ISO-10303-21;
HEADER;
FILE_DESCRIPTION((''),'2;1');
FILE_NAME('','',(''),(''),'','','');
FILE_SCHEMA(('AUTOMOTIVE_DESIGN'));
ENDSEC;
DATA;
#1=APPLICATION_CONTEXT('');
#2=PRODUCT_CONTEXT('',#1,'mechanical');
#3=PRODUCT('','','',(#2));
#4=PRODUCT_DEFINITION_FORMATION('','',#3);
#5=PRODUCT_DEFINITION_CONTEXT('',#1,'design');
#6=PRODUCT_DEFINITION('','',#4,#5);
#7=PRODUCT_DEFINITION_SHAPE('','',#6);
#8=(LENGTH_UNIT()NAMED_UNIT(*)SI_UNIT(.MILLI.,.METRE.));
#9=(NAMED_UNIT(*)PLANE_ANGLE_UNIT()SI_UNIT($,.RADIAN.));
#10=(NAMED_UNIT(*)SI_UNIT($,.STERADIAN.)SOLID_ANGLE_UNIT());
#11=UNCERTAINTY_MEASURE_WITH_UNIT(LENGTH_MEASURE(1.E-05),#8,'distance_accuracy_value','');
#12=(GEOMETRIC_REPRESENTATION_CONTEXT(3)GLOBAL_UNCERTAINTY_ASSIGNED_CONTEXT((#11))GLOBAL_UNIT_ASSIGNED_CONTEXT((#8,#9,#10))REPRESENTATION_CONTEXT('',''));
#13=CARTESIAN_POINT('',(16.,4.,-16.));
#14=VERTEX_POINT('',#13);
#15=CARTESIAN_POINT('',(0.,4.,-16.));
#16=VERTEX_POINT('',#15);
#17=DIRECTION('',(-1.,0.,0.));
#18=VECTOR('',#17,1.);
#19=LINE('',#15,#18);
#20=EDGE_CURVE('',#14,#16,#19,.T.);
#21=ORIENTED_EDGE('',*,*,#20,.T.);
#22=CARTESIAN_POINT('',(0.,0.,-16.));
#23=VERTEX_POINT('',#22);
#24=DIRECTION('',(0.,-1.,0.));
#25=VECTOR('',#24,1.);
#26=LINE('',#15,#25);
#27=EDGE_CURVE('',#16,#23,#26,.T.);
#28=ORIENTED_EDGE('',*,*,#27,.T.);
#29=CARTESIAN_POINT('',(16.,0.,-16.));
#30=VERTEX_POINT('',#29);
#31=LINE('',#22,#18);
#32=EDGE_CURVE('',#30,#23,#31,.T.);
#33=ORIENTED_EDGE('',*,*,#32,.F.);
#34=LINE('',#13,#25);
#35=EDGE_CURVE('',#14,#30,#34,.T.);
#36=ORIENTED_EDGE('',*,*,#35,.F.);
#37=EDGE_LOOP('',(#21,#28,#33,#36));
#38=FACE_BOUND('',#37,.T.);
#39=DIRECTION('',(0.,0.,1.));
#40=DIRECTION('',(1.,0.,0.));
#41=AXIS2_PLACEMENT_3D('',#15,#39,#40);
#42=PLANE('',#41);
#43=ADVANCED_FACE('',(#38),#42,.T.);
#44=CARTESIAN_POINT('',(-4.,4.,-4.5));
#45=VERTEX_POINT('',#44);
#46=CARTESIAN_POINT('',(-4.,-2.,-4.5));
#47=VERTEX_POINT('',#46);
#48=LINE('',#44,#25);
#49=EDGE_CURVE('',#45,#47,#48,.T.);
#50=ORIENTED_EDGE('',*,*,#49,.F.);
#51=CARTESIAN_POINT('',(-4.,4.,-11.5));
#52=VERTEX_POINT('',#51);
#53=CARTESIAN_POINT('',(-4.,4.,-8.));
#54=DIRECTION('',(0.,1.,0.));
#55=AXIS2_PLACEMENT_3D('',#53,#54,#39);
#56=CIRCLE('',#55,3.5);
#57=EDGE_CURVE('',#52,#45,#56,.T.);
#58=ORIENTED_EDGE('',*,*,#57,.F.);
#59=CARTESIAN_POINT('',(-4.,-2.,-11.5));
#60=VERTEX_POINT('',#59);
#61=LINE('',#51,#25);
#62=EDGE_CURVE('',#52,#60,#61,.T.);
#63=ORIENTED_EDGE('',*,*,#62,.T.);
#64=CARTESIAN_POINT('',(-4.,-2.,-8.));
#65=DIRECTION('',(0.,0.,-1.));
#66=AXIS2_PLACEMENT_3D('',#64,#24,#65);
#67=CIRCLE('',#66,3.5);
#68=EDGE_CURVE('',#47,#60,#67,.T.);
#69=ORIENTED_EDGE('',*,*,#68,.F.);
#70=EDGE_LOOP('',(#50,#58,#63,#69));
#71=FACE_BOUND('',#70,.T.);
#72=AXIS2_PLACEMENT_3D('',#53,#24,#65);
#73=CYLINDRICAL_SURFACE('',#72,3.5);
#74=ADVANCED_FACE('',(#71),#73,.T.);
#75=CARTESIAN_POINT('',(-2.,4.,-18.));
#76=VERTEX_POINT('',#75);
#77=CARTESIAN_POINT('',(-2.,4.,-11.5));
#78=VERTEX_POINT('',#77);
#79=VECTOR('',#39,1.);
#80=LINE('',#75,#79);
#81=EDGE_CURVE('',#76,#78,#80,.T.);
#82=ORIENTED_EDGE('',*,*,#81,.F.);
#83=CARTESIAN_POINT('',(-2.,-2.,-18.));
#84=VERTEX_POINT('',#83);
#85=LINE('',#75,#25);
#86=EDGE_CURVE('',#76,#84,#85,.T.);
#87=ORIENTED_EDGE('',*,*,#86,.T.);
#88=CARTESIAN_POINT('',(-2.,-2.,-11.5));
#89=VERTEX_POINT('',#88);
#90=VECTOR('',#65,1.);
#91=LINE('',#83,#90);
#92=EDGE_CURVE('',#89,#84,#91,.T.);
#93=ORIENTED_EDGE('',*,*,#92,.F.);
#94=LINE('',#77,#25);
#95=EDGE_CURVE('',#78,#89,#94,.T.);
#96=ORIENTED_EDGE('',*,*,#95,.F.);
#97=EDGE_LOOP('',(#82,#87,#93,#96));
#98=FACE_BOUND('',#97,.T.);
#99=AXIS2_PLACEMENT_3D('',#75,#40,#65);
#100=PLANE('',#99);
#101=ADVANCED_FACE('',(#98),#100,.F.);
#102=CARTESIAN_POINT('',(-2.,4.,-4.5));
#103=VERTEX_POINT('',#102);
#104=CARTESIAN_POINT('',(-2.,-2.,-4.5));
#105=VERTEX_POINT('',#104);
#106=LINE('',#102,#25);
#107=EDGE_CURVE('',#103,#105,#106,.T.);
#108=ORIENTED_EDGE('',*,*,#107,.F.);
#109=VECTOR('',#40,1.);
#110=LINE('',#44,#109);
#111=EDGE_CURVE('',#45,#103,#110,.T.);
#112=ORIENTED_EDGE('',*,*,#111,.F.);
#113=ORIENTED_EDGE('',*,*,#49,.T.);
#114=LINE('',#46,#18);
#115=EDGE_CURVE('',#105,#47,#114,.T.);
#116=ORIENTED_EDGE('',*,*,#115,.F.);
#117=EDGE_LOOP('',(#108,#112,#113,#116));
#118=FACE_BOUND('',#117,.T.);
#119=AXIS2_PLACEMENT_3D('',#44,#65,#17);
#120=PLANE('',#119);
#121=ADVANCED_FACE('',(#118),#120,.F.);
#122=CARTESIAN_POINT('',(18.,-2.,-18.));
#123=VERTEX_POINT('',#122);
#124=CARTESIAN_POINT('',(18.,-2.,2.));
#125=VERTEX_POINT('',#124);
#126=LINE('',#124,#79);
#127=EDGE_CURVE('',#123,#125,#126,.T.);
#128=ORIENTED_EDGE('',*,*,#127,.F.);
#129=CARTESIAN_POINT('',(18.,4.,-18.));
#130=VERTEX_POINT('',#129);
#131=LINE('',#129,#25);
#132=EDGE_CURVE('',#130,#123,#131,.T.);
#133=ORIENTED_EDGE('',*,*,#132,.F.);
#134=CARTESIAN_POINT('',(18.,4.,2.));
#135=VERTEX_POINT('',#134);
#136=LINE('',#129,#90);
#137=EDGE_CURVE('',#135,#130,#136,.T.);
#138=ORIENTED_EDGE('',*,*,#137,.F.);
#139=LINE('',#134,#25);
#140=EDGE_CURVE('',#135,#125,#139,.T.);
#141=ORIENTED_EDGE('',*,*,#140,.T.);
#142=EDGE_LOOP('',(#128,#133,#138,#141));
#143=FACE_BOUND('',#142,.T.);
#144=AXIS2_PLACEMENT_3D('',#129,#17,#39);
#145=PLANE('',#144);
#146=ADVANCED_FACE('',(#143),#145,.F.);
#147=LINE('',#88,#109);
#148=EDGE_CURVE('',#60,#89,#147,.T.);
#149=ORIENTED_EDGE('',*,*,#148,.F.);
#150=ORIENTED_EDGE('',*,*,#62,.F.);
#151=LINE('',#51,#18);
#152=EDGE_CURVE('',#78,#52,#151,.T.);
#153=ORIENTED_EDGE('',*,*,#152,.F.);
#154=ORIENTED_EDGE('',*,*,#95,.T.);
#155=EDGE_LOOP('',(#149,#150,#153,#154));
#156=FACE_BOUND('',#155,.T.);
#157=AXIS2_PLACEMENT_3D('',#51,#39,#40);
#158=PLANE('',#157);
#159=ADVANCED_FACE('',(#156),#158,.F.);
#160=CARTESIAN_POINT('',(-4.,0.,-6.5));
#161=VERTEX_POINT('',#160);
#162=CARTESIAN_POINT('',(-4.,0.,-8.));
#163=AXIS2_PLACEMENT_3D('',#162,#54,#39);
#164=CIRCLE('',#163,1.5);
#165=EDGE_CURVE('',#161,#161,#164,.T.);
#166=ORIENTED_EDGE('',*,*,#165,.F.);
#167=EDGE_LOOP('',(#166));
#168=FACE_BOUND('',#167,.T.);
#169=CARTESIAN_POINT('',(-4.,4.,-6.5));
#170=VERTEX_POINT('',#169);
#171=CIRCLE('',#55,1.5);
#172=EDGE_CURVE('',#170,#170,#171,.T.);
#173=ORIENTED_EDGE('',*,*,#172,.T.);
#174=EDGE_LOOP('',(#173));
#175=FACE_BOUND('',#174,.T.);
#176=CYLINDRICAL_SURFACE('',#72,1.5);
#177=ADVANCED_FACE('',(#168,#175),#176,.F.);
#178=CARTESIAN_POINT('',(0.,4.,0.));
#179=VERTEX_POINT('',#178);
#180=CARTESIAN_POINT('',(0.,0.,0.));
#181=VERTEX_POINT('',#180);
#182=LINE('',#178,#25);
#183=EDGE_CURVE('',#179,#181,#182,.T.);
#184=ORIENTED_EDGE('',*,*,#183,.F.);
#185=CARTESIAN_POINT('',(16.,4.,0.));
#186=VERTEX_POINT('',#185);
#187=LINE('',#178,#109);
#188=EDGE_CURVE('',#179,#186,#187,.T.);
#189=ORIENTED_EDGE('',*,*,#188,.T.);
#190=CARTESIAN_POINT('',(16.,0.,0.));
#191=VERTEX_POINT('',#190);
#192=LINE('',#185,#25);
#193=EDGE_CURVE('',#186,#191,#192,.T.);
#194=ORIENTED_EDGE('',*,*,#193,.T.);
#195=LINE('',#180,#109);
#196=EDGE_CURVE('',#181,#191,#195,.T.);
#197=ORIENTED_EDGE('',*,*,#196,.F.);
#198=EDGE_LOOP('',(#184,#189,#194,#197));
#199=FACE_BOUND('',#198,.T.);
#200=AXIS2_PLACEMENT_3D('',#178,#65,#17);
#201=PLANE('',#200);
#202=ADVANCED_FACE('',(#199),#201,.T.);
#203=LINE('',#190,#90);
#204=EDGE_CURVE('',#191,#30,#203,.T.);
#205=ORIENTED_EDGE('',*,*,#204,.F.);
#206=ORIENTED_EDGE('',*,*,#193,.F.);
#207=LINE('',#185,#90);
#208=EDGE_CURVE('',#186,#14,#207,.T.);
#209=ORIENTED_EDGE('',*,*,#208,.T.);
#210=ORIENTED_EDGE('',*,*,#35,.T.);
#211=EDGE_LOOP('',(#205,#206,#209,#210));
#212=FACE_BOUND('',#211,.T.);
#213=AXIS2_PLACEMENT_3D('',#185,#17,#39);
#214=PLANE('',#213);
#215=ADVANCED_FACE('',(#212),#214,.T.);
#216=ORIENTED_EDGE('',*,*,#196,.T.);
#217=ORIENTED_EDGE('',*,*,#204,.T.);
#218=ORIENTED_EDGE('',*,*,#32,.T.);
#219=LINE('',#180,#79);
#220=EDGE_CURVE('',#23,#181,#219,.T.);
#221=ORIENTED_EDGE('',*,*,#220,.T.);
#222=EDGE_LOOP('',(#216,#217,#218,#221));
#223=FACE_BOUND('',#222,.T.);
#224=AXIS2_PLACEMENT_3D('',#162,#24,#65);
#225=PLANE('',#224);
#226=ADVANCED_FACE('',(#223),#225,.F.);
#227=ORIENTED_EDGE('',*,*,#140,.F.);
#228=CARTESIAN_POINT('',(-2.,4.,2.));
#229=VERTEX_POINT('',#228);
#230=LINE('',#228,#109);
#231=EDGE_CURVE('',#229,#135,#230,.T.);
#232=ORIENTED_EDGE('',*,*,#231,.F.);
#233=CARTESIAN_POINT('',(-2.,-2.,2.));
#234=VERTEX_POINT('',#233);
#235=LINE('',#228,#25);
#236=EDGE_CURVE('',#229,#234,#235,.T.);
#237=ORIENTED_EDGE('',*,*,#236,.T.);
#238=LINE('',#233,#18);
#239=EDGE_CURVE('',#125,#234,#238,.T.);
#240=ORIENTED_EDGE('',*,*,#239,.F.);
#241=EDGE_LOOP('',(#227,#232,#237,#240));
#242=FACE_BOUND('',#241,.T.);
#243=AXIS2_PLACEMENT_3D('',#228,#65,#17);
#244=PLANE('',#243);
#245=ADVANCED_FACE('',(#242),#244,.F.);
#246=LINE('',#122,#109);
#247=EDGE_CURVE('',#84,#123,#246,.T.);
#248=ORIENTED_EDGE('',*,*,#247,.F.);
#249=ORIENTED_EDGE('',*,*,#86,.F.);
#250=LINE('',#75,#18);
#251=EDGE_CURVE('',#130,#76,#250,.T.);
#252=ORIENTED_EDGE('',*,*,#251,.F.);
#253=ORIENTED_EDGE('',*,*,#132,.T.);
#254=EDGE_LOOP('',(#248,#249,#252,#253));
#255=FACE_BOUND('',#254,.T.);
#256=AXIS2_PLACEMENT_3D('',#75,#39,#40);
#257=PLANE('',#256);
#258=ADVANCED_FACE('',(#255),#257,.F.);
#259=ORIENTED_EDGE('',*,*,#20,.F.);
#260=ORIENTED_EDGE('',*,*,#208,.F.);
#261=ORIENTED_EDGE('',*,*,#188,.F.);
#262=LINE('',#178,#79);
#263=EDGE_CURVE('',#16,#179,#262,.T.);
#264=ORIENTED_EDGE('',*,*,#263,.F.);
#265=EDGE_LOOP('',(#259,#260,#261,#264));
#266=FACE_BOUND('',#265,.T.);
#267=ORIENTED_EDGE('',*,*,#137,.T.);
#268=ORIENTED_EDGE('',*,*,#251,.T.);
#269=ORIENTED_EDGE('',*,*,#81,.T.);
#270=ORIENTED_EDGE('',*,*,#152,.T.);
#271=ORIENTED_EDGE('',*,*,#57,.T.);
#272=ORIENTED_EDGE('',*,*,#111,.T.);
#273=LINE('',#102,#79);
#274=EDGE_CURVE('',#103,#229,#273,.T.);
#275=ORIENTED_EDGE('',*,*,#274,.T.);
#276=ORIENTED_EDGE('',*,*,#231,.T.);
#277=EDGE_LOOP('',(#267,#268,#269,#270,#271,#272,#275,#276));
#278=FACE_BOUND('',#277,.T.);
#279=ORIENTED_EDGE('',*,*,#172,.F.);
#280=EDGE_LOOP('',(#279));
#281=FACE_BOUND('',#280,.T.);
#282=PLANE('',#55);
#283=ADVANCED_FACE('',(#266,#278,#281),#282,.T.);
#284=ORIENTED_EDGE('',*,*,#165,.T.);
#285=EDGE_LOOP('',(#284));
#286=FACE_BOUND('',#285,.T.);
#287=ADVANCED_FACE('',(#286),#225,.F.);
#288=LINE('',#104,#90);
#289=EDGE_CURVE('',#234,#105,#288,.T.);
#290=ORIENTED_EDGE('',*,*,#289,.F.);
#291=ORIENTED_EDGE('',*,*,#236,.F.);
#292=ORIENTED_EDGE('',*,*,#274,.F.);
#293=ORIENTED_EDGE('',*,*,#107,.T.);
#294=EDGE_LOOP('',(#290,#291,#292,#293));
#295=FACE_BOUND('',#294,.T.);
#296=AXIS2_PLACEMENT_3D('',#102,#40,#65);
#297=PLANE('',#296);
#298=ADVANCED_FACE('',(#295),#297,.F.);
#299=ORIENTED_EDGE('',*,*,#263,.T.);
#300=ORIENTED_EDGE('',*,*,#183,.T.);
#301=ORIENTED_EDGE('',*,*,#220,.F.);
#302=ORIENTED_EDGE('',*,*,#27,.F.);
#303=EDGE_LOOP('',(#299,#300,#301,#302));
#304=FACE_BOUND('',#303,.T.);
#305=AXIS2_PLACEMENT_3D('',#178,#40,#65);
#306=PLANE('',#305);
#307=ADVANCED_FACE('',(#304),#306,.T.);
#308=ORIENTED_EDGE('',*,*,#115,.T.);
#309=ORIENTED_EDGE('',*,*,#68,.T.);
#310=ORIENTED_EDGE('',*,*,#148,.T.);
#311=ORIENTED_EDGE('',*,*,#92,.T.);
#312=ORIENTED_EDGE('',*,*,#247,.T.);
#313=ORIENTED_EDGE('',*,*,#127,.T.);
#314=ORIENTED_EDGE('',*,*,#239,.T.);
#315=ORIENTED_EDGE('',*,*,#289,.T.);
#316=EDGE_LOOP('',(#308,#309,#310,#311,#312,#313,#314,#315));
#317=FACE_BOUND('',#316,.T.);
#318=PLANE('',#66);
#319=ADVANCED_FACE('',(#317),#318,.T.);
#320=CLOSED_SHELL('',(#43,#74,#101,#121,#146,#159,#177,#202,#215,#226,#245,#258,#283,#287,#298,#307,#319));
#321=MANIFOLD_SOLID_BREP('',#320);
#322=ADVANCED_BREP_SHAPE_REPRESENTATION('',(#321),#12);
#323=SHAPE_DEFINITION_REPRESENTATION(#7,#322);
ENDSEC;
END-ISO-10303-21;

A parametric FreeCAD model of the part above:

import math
import FreeCAD as App
import Part
import Sketcher

V = App.Vector


def add_polygon(sketch, points):
    """Adds a closed chain of lines whose ends are joined by coincident constraints."""
    first, n = sketch.GeometryCount, len(points)
    for a, b in zip(points, points[1:] + points[:1]):
        sketch.addGeometry(Part.LineSegment(App.Vector(*a, 0), App.Vector(*b, 0)), False)
    for i in range(n):
        sketch.addConstraint(Sketcher.Constraint("Coincident", first + i, 2, first + (i + 1) % n, 1))

doc = App.newDocument("Part")
body = doc.addObject("PartDesign::Body", "Body")

sketch1 = body.newObject("Sketcher::SketchObject", "Sketch")
sketch1.AttachmentSupport = (doc.getObject("XZ_Plane"), [""])
sketch1.MapMode = "FlatFace"
sketch1.addGeometry(Part.LineSegment(V(18, -18, 0), V(-2, -18, 0)), False)
sketch1.addGeometry(Part.LineSegment(V(-2, -18, 0), V(-2, -11.5, 0)), False)
sketch1.addGeometry(Part.LineSegment(V(-2, -11.5, 0), V(-4, -11.5, 0)), False)
sketch1.addGeometry(Part.ArcOfCircle(Part.Circle(V(-4, -8, 0), V(0, 0, 1), 3.5), math.radians(90), math.radians(270)), False)
sketch1.addGeometry(Part.LineSegment(V(-4, -4.5, 0), V(-2, -4.5, 0)), False)
sketch1.addGeometry(Part.LineSegment(V(-2, -4.5, 0), V(-2, 2, 0)), False)
sketch1.addGeometry(Part.LineSegment(V(-2, 2, 0), V(18, 2, 0)), False)
sketch1.addGeometry(Part.LineSegment(V(18, 2, 0), V(18, -18, 0)), False)
add_polygon(sketch1, [(0, 0), (0, -16), (16, -16), (16, 0)])
sketch1.addGeometry(Part.Circle(V(-4, -8, 0), V(0, 0, 1), 1.5), False)
sketch1.addConstraint(Sketcher.Constraint("Coincident", 0, 2, 1, 1))
sketch1.addConstraint(Sketcher.Constraint("Coincident", 1, 2, 2, 1))
sketch1.addConstraint(Sketcher.Constraint("Tangent", 2, 2, 3, 2))
sketch1.addConstraint(Sketcher.Constraint("Tangent", 3, 1, 4, 1))
sketch1.addConstraint(Sketcher.Constraint("Coincident", 4, 2, 5, 1))
sketch1.addConstraint(Sketcher.Constraint("Coincident", 5, 2, 6, 1))
sketch1.addConstraint(Sketcher.Constraint("Coincident", 6, 2, 7, 1))
sketch1.addConstraint(Sketcher.Constraint("Coincident", 7, 2, 0, 1))
sketch1.addConstraint(Sketcher.Constraint("Horizontal", 0))
sketch1.addConstraint(Sketcher.Constraint("Vertical", 1))
sketch1.addConstraint(Sketcher.Constraint("Horizontal", 2))
sketch1.addConstraint(Sketcher.Constraint("Horizontal", 4))
sketch1.addConstraint(Sketcher.Constraint("Vertical", 5))
sketch1.addConstraint(Sketcher.Constraint("Horizontal", 6))
sketch1.addConstraint(Sketcher.Constraint("Vertical", 7))
sketch1.addConstraint(Sketcher.Constraint("Vertical", 8))
sketch1.addConstraint(Sketcher.Constraint("Horizontal", 9))
sketch1.addConstraint(Sketcher.Constraint("Vertical", 10))
sketch1.addConstraint(Sketcher.Constraint("Horizontal", 11))
sketch1.addConstraint(Sketcher.Constraint("Coincident", 11, 2, -1, 1))
sketch1.addConstraint(Sketcher.Constraint("Coincident", 12, 3, 3, 3))
sketch1.addConstraint(Sketcher.Constraint("Vertical", 1, 2, 4, 2))
sketch1.addConstraint(Sketcher.Constraint("Equal", 1, 5))
sketch1.addConstraint(Sketcher.Constraint("Equal", 6, 7))
sketch1.addConstraint(Sketcher.Constraint("Equal", 11, 8))
sketch1.addConstraint(Sketcher.Constraint("Diameter", 12, 3.0))
sketch1.addConstraint(Sketcher.Constraint("Radius", 3, 3.5))
sketch1.addConstraint(Sketcher.Constraint("DistanceX", 0, 2, 0, 1, 20.0))
sketch1.addConstraint(Sketcher.Constraint("DistanceX", 2, 2, 2, 1, 2.0))
sketch1.addConstraint(Sketcher.Constraint("DistanceX", 9, 1, 9, 2, 16.0))
sketch1.addConstraint(Sketcher.Constraint("DistanceX", 3, 3, -1, 1, 4.0))
sketch1.addConstraint(Sketcher.Constraint("DistanceY", 3, 3, -1, 1, 8.0))
pad1 = body.newObject("PartDesign::Pad", "Pad")
pad1.Profile = sketch1
pad1.Length = 4
pad1.Reversed = True

sketch2 = body.newObject("Sketcher::SketchObject", "Sketch001")
sketch2.AttachmentSupport = (doc.getObject("XZ_Plane"), [""])
sketch2.MapMode = "FlatFace"
sketch2.AttachmentOffset = App.Placement(V(0, 0, 2), App.Rotation())
sketch2.addGeometry(Part.LineSegment(V(18, -18, 0), V(18, 2, 0)), False)
sketch2.addGeometry(Part.LineSegment(V(18, 2, 0), V(-2, 2, 0)), False)
sketch2.addGeometry(Part.LineSegment(V(-2, 2, 0), V(-2, -4.5, 0)), False)
sketch2.addGeometry(Part.LineSegment(V(-2, -4.5, 0), V(-4, -4.5, 0)), False)
sketch2.addGeometry(Part.ArcOfCircle(Part.Circle(V(-4, -8, 0), V(0, 0, 1), 3.5), math.radians(90), math.radians(270)), False)
sketch2.addGeometry(Part.LineSegment(V(-4, -11.5, 0), V(-2, -11.5, 0)), False)
sketch2.addGeometry(Part.LineSegment(V(-2, -11.5, 0), V(-2, -18, 0)), False)
sketch2.addGeometry(Part.LineSegment(V(-2, -18, 0), V(18, -18, 0)), False)
sketch2.addConstraint(Sketcher.Constraint("Coincident", 0, 2, 1, 1))
sketch2.addConstraint(Sketcher.Constraint("Coincident", 1, 2, 2, 1))
sketch2.addConstraint(Sketcher.Constraint("Coincident", 2, 2, 3, 1))
sketch2.addConstraint(Sketcher.Constraint("Tangent", 3, 2, 4, 1))
sketch2.addConstraint(Sketcher.Constraint("Tangent", 4, 2, 5, 1))
sketch2.addConstraint(Sketcher.Constraint("Coincident", 5, 2, 6, 1))
sketch2.addConstraint(Sketcher.Constraint("Coincident", 6, 2, 7, 1))
sketch2.addConstraint(Sketcher.Constraint("Coincident", 7, 2, 0, 1))
sketch2.addConstraint(Sketcher.Constraint("Vertical", 0))
sketch2.addConstraint(Sketcher.Constraint("Horizontal", 1))
sketch2.addConstraint(Sketcher.Constraint("Vertical", 2))
sketch2.addConstraint(Sketcher.Constraint("Horizontal", 3))
sketch2.addConstraint(Sketcher.Constraint("Horizontal", 5))
sketch2.addConstraint(Sketcher.Constraint("Vertical", 6))
sketch2.addConstraint(Sketcher.Constraint("Horizontal", 7))
sketch2.addConstraint(Sketcher.Constraint("Vertical", 2, 2, 5, 2))
sketch2.addConstraint(Sketcher.Constraint("Equal", 7, 0))
sketch2.addConstraint(Sketcher.Constraint("Equal", 2, 6))
sketch2.addConstraint(Sketcher.Constraint("Radius", 4, 3.5))
sketch2.addConstraint(Sketcher.Constraint("DistanceX", 1, 2, 1, 1, 20.0))
sketch2.addConstraint(Sketcher.Constraint("DistanceX", 3, 2, 3, 1, 2.0))
sketch2.addConstraint(Sketcher.Constraint("DistanceX", 4, 3, -1, 1, 4.0))
sketch2.addConstraint(Sketcher.Constraint("DistanceY", 4, 3, -1, 1, 8.0))
pad2 = body.newObject("PartDesign::Pad", "Pad001")
pad2.Profile = sketch2
pad2.Length = 2
pad2.Reversed = True

doc.recompute()
